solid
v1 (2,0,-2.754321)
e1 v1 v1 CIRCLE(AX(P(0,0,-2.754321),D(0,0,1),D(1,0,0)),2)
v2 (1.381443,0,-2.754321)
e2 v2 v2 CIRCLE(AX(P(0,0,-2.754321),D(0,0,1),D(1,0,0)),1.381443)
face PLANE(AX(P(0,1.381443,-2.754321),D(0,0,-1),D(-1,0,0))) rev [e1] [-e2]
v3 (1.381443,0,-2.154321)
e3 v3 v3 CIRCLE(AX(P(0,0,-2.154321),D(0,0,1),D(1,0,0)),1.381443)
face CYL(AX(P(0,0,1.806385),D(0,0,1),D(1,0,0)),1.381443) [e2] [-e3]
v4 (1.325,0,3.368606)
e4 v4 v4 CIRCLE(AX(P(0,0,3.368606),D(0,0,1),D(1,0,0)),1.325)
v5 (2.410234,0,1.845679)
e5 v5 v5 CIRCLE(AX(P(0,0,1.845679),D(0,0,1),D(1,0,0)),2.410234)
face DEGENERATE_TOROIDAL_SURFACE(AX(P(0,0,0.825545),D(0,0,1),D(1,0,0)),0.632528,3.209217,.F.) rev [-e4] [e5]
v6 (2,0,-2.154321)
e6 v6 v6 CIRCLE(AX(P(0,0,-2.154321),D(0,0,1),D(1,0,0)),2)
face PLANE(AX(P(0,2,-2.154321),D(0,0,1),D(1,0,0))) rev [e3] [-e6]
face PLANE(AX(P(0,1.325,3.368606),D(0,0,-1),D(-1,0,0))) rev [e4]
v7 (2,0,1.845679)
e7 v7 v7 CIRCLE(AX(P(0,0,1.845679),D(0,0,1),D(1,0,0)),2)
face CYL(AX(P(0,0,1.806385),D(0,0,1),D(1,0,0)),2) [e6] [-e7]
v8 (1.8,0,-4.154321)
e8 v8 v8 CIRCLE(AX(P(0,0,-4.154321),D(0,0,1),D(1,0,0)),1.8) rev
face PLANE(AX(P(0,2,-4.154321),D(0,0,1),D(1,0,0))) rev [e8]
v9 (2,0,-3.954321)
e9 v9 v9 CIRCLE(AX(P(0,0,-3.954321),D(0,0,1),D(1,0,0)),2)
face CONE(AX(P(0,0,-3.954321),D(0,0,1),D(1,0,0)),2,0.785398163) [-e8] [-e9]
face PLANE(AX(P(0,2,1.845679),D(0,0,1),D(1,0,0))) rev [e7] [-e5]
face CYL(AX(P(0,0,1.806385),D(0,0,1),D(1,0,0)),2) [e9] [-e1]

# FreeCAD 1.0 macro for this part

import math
import FreeCAD as App
import Part
import Sketcher


def edges_at(feature, points):
    """Names of the edges that pass closest to the given points."""
    edges = feature.Shape.Edges
    near = lambda p: min(range(len(edges)), key=lambda i: edges[i].distToShape(Part.Vertex(*p))[0])
    return sorted({f"Edge{near(p) + 1}" for p in points})

doc = App.newDocument("Part")
body = doc.addObject("PartDesign::Body", "Body")

# Sketch on YZ plane
sketch1 = doc.addObject("Sketcher::SketchObject", "Sketch")
body.addObject(sketch1)
sketch1.AttachmentSupport = (doc.YZ_Plane, [""])
sketch1.MapMode = "FlatFace"
sketch1.addGeometry([
    Part.LineSegment(App.Vector(0, -4.154321, 0), App.Vector(2, -4.154321, 0)),  # 0
    Part.LineSegment(App.Vector(2, -4.154321, 0), App.Vector(2, -2.754321, 0)),  # 1
    Part.LineSegment(App.Vector(2, -2.754321, 0), App.Vector(1.381443, -2.754321, 0)),  # 2
    Part.LineSegment(App.Vector(1.381443, -2.754321, 0), App.Vector(1.381443, -2.154321, 0)),  # 3
    Part.LineSegment(App.Vector(1.381443, -2.154321, 0), App.Vector(2, -2.154321, 0)),  # 4
    Part.LineSegment(App.Vector(2, -2.154321, 0), App.Vector(2, 1.845679, 0)),  # 5
    Part.LineSegment(App.Vector(2, 1.845679, 0), App.Vector(2.410234, 1.845679, 0)),  # 6
    Part.ArcOfCircle(Part.Circle(App.Vector(-0.632528, 0.825545, 0), App.Vector(0, 0, 1), 3.209217), math.radians(18.534541), math.radians(52.412623)),  # 7
    Part.LineSegment(App.Vector(1.325, 3.368606, 0), App.Vector(0, 3.368606, 0)),  # 8
    Part.LineSegment(App.Vector(0, 3.368606, 0), App.Vector(0, -4.154321, 0)),  # 9
], False)
sketch1.addConstraint([
    Sketcher.Constraint("Coincident", 0, 2, 1, 1),
    Sketcher.Constraint("Coincident", 1, 2, 2, 1),
    Sketcher.Constraint("Coincident", 2, 2, 3, 1),
    Sketcher.Constraint("Coincident", 3, 2, 4, 1),
    Sketcher.Constraint("Coincident", 4, 2, 5, 1),
    Sketcher.Constraint("Coincident", 5, 2, 6, 1),
    Sketcher.Constraint("Coincident", 6, 2, 7, 1),
    Sketcher.Constraint("Coincident", 7, 2, 8, 1),
    Sketcher.Constraint("Coincident", 8, 2, 9, 1),
    Sketcher.Constraint("Coincident", 9, 2, 0, 1),
    Sketcher.Constraint("Horizontal", 0),
    Sketcher.Constraint("Vertical", 1),
    Sketcher.Constraint("Horizontal", 2),
    Sketcher.Constraint("Vertical", 3),
    Sketcher.Constraint("Horizontal", 4),
    Sketcher.Constraint("Vertical", 5),
    Sketcher.Constraint("Horizontal", 6),
    Sketcher.Constraint("Horizontal", 8),
    Sketcher.Constraint("Vertical", 9),
    Sketcher.Constraint("PointOnObject", 8, 2, -2),
    Sketcher.Constraint("Vertical", 1, 2, 4, 2),
    Sketcher.Constraint("DistanceX", 0, 1, 0, 2, 2.0),
    Sketcher.Constraint("DistanceY", 5, 1, 5, 2, 4.0),
    Sketcher.Constraint("DistanceY", 1, 1, 1, 2, 1.4),
    Sketcher.Constraint("DistanceY", 3, 1, 3, 2, 0.6),
    Sketcher.Constraint("DistanceX", 8, 2, 8, 1, 1.325),
    Sketcher.Constraint("Radius", 7, 3.209217),
    Sketcher.Constraint("DistanceX", 2, 2, 2, 1, 0.618557),
    Sketcher.Constraint("DistanceX", 6, 1, 6, 2, 0.410234),
    Sketcher.Constraint("DistanceY", 9, 2, 9, 1, 7.522927),
    Sketcher.Constraint("DistanceY", 0, 2, -1, 1, 4.154321),
])
revolution = doc.addObject("PartDesign::Revolution", "Revolution")
body.addObject(revolution)
revolution.Profile = sketch1
revolution.ReferenceAxis = (sketch1, ["V_Axis"])
revolution.Angle = 360
doc.recompute()

chamfer = doc.addObject("PartDesign::Chamfer", "Chamfer")
body.addObject(chamfer)
chamfer.Base = (revolution, edges_at(revolution, [(-2, 0, -4.154)]))
chamfer.Size = 0.2

doc.recompute()
